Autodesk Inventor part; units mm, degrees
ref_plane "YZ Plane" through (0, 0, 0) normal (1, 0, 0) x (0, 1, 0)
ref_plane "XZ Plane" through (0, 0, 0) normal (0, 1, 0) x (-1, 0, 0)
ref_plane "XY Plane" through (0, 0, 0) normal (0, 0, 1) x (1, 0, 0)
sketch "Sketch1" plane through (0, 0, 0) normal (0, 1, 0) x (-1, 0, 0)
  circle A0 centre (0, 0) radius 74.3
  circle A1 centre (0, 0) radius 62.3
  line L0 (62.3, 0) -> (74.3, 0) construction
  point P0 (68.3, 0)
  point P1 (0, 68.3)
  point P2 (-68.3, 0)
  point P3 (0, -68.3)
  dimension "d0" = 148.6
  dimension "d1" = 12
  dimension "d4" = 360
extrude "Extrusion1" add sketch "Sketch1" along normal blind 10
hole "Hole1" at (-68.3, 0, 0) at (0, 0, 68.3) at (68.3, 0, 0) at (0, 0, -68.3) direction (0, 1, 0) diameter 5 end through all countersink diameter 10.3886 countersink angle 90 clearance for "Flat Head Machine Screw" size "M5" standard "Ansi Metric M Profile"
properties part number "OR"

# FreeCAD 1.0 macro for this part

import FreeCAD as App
import Part
import Sketcher

V = App.Vector
Q = App.Units.Quantity

doc = App.newDocument("Part")
body = doc.addObject("PartDesign::Body", "Body")

sketch1 = body.newObject("Sketcher::SketchObject", "Sketch")
sketch1.AttachmentSupport = (doc.getObject("XZ_Plane"), [""])
sketch1.MapMode = "FlatFace"
sketch1.addGeometry([
    Part.Circle(V(0, 0, 0), V(0, 0, 1), 74),
    Part.Circle(V(0, 0, 0), V(0, 0, 1), 62),
], False)
sketch1.addConstraint([
    Sketcher.Constraint("Coincident", 0, 3, -1, 1),
    Sketcher.Constraint("Coincident", 1, 3, -1, 1),
    Sketcher.Constraint("Diameter", 0, Q("148.6 mm")),
    Sketcher.Constraint("Diameter", 1, Q("124.6 mm")),
])
pad1 = body.newObject("PartDesign::Pad", "Pad")
pad1.Profile = sketch1
pad1.Length = 10
pad1.Reversed = True

sketch2 = body.newObject("Sketcher::SketchObject", "Sketch001")
sketch2.AttachmentSupport = (doc.getObject("XZ_Plane"), [""])
sketch2.MapMode = "FlatFace"
sketch2.addGeometry([
    Part.Circle(V(-68.3, 0, 0), V(0, 0, 1), 2.5),
    Part.Circle(V(0, 68.3, 0), V(0, 0, 1), 2.5),
    Part.Circle(V(68.3, 0, 0), V(0, 0, 1), 2.5),
    Part.Circle(V(0, -68.3, 0), V(0, 0, 1), 2.5),
], False)
sketch2.addConstraint([
    Sketcher.Constraint("Equal", 0, 1),
    Sketcher.Constraint("Equal", 1, 2),
    Sketcher.Constraint("Equal", 2, 3),
    Sketcher.Constraint("Symmetric", 0, 3, 2, 3, -1, 1),
    Sketcher.Constraint("Symmetric", 1, 3, 3, 3, -1, 1),
    Sketcher.Constraint("PointOnObject", 0, 3, -1),
    Sketcher.Constraint("PointOnObject", 1, 3, -2),
    Sketcher.Constraint("Diameter", 0, Q("5 mm")),
    Sketcher.Constraint("DistanceX", 0, 3, -1, 1, Q("68.3 mm")),
    Sketcher.Constraint("DistanceY", -1, 1, 1, 3, Q("68.3 mm")),
])
doc.recompute()
hole = body.newObject("PartDesign::Hole", "Hole")
hole.Profile = sketch2
hole.ThreadType = "None"
hole.Diameter = 5
hole.DepthType = "ThroughAll"
hole.HoleCutType = "Countersink"
hole.HoleCutDiameter = 10.3886
hole.HoleCutCountersinkAngle = 90

doc.recompute()
